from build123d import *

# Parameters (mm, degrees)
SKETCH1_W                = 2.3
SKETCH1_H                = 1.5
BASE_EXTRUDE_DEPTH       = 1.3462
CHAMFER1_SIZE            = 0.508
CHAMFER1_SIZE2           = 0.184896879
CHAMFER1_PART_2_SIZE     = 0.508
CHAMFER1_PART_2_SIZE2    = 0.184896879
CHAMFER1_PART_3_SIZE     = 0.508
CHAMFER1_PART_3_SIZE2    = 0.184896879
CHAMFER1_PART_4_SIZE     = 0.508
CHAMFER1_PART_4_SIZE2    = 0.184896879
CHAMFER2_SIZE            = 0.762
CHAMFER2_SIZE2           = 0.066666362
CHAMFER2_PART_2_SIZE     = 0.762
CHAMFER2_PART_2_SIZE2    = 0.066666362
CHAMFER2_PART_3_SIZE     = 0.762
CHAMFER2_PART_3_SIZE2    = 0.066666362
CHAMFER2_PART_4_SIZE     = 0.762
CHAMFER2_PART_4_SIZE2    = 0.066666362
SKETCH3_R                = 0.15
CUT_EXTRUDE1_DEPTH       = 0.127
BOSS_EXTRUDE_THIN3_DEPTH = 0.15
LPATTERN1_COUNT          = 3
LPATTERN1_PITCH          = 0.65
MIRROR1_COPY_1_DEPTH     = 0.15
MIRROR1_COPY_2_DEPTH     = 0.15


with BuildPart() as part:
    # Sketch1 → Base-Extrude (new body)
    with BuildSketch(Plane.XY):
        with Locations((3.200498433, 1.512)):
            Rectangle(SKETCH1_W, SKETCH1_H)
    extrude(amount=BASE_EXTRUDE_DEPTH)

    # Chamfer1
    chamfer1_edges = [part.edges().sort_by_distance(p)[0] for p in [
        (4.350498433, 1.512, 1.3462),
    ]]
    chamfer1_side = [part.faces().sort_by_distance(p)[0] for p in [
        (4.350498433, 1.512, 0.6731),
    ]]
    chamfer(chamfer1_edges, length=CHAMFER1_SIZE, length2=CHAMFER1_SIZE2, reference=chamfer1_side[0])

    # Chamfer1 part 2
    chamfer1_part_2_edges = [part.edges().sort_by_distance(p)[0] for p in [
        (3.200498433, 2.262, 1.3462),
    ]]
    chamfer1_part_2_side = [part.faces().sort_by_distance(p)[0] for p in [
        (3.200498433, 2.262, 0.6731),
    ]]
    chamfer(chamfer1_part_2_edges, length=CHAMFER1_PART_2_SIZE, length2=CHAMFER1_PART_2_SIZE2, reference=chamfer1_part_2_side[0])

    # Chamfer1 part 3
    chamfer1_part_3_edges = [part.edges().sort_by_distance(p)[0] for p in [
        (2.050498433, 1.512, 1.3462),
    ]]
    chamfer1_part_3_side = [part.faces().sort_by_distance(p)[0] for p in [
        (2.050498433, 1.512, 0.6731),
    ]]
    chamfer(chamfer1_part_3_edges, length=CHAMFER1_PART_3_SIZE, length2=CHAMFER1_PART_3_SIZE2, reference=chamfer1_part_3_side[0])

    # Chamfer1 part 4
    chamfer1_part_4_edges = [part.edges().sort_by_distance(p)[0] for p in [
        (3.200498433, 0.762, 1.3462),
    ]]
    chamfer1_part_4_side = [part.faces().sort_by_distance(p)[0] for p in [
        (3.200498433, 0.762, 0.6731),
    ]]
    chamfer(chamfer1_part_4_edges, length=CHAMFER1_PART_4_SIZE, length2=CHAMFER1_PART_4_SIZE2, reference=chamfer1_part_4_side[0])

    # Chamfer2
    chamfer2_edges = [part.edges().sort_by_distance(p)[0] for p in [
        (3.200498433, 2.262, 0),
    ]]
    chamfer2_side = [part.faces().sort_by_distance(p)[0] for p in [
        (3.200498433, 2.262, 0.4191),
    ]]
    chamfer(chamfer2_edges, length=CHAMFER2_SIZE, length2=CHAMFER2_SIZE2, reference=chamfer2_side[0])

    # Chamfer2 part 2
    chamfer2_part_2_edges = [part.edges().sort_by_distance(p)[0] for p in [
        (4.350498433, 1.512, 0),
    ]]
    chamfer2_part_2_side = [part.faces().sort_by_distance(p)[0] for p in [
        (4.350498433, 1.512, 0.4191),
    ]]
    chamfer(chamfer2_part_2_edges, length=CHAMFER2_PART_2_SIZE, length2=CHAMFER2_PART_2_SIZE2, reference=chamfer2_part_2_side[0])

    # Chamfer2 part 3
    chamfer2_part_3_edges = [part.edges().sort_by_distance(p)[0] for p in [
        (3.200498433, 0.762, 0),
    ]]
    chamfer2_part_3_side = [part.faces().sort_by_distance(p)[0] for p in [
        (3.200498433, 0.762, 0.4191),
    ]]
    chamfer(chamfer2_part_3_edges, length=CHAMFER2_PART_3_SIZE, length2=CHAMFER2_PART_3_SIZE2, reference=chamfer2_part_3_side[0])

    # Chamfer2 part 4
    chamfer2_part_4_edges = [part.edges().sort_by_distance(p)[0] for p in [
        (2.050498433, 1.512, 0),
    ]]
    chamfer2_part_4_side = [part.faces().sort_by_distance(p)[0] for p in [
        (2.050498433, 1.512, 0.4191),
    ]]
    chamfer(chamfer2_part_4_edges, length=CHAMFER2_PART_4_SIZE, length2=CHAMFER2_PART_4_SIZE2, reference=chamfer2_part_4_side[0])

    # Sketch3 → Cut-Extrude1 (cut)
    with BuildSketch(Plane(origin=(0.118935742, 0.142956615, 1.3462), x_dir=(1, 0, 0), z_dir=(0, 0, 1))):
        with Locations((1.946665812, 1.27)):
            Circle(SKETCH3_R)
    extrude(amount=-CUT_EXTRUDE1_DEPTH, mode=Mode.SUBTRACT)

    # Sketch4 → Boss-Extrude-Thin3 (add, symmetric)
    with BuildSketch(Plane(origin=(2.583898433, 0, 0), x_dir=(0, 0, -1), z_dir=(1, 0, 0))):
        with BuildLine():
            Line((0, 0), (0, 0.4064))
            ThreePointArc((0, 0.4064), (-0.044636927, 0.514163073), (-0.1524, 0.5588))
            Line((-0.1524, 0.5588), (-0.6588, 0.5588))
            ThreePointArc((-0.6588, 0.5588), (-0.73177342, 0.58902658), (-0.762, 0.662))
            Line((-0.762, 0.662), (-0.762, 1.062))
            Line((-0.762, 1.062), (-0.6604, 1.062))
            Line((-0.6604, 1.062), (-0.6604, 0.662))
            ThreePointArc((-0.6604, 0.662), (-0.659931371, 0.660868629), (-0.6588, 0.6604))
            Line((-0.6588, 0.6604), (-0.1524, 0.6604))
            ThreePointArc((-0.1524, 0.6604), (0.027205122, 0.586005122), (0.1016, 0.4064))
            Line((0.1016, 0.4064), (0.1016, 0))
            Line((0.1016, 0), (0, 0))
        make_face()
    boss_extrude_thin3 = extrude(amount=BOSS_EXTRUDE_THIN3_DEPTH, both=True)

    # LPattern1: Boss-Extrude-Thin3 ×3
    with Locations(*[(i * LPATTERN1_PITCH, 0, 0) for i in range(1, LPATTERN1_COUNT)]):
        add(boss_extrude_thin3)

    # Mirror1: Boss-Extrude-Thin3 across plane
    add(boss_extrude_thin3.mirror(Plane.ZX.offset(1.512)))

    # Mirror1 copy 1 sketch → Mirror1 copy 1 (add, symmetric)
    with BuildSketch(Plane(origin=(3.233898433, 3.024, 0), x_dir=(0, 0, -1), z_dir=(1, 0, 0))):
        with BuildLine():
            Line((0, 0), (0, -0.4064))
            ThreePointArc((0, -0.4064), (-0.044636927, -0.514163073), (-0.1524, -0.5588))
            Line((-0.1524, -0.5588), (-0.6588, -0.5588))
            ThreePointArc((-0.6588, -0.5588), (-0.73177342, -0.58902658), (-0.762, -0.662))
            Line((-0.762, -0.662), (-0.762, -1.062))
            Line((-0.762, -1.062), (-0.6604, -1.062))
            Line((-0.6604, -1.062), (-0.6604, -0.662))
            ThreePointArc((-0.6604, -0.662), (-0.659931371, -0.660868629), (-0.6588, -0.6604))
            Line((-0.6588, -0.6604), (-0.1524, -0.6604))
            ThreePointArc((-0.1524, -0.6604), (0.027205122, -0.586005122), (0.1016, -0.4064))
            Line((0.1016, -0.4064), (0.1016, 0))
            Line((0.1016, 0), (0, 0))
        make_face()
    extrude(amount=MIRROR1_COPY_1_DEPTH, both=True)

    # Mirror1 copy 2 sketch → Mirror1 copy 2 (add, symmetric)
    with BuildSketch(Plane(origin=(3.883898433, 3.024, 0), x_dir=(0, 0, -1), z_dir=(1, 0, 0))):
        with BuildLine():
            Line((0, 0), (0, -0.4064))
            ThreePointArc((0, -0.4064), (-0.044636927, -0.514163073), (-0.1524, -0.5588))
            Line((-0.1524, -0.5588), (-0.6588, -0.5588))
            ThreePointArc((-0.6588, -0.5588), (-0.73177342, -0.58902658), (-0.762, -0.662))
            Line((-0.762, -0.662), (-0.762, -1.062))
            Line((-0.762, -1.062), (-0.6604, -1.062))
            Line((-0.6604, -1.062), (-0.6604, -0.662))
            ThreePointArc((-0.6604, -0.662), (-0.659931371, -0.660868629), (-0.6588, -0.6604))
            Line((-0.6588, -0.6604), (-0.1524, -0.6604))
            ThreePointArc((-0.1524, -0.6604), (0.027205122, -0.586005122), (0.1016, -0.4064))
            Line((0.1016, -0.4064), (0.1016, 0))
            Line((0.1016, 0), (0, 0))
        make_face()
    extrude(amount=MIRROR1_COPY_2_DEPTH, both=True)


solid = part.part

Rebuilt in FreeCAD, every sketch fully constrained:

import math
import FreeCAD as App
import Part
import Sketcher

V = App.Vector
Q = App.Units.Quantity


def edges_at(feature, points):
    """Names of the edges that pass closest to the given points."""
    edges = feature.Shape.Edges
    near = lambda p: min(range(len(edges)), key=lambda i: edges[i].distToShape(Part.Vertex(*p))[0])
    return sorted({f"Edge{near(p) + 1}" for p in points})


def add_polygon(sketch, points):
    """Adds a closed chain of lines whose ends are joined by coincident constraints."""
    first, n = sketch.GeometryCount, len(points)
    for a, b in zip(points, points[1:] + points[:1]):
        sketch.addGeometry(Part.LineSegment(App.Vector(*a, 0), App.Vector(*b, 0)), False)
    for i in range(n):
        sketch.addConstraint(Sketcher.Constraint("Coincident", first + i, 2, first + (i + 1) % n, 1))

doc = App.newDocument("Part")
params = doc.addObject("Spreadsheet::Sheet", "Params")
for row, (alias, value) in enumerate([
    ("pad1_length", "0.053 in"),
    ("chamfer_size", "0.02 in"),
    ("chamfer_size2", "0.184897 mm"),
    ("chamfer2_size", "0.02 in"),
    ("chamfer2_size2", "0.184897 mm"),
    ("chamfer3_size", "0.02 in"),
    ("chamfer3_size2", "0.184897 mm"),
    ("chamfer4_size", "0.02 in"),
    ("chamfer4_size2", "0.184897 mm"),
    ("chamfer5_size", "0.03 in"),
    ("chamfer5_size2", "0.066666 mm"),
    ("chamfer6_size", "0.03 in"),
    ("chamfer6_size2", "0.066666 mm"),
    ("chamfer7_size", "0.03 in"),
    ("chamfer7_size2", "0.066666 mm"),
    ("chamfer8_size", "0.03 in"),
    ("chamfer8_size2", "0.066666 mm"),
    ("pocket1_length", "0.005 in"),
    ("sketch3_radius", "0.01 in"),
    ("sketch3_radius2", "0.006 in"),
    ("sketch3_width", "0.016 in"),
    ("pad2_length", "0.3 mm"),
    ("linearpattern_pitch", "0.65 mm"),
    ("sketch4_radius", "0.01 in"),
    ("sketch4_radius2", "0.006 in"),
    ("sketch4_width", "0.016 in"),
    ("pad3_length", "0.3 mm"),
    ("sketch5_radius", "0.01 in"),
    ("sketch5_radius2", "0.006 in"),
    ("sketch5_width", "0.016 in"),
    ("pad4_length", "0.3 mm"),
], start=1):
    params.set(f"A{row}", alias)
    params.set(f"B{row}", "=" + value)
    params.setAlias(f"B{row}", alias)

body = doc.addObject("PartDesign::Body", "Body")

# Sketch on XY plane
sketch1 = body.newObject("Sketcher::SketchObject", "Sketch")
sketch1.AttachmentSupport = (doc.getObject("XY_Plane"), [""])
sketch1.MapMode = "FlatFace"
add_polygon(sketch1, [(2.050498, 2.262), (2.050498, 0.762), (4.350498, 0.762), (4.350498, 2.262)])  # lines 0-3
sketch1.addConstraint([
    Sketcher.Constraint("Vertical", 0),
    Sketcher.Constraint("Horizontal", 1),
    Sketcher.Constraint("Vertical", 2),
    Sketcher.Constraint("Horizontal", 3),
    Sketcher.Constraint("DistanceY", -1, 1, 0, 2, Q("0.03 in")),
    Sketcher.Constraint("DistanceX", 1, 1, 1, 2, 2.3),
    Sketcher.Constraint("DistanceY", 0, 2, 0, 1, 1.5),
    Sketcher.Constraint("DistanceX", -1, 1, 0, 2, 2.050498),
])
pad1 = body.newObject("PartDesign::Pad", "Pad")
pad1.Profile = sketch1
pad1.setExpression("Length", "Params.pad1_length")
doc.recompute()

chamfer = body.newObject("PartDesign::Chamfer", "Chamfer")
chamfer.Base = (pad1, edges_at(pad1, [(4.35, 1.512, 1.346)]))
chamfer.ChamferType = "Two distances"
chamfer.setExpression("Size", "Params.chamfer_size")
chamfer.setExpression("Size2", "Params.chamfer_size2")
doc.recompute()

chamfer2 = body.newObject("PartDesign::Chamfer", "Chamfer001")
chamfer2.Base = (chamfer, edges_at(chamfer, [(3.108, 2.262, 1.346)]))
chamfer2.ChamferType = "Two distances"
chamfer2.setExpression("Size", "Params.chamfer2_size")
chamfer2.setExpression("Size2", "Params.chamfer2_size2")
chamfer2.FlipDirection = True
doc.recompute()

chamfer3 = body.newObject("PartDesign::Chamfer", "Chamfer002")
chamfer3.Base = (chamfer2, edges_at(chamfer2, [(2.05, 1.42, 1.346)]))
chamfer3.ChamferType = "Two distances"
chamfer3.setExpression("Size", "Params.chamfer3_size")
chamfer3.setExpression("Size2", "Params.chamfer3_size2")
chamfer3.FlipDirection = True
doc.recompute()

chamfer4 = body.newObject("PartDesign::Chamfer", "Chamfer003")
chamfer4.Base = (chamfer3, edges_at(chamfer3, [(3.2, 0.762, 1.346)]))
chamfer4.ChamferType = "Two distances"
chamfer4.setExpression("Size", "Params.chamfer4_size")
chamfer4.setExpression("Size2", "Params.chamfer4_size2")
chamfer4.FlipDirection = True
doc.recompute()

chamfer5 = body.newObject("PartDesign::Chamfer", "Chamfer004")
chamfer5.Base = (chamfer4, edges_at(chamfer4, [(3.2, 2.262, 0)]))
chamfer5.ChamferType = "Two distances"
chamfer5.setExpression("Size", "Params.chamfer5_size")
chamfer5.setExpression("Size2", "Params.chamfer5_size2")
doc.recompute()

chamfer6 = body.newObject("PartDesign::Chamfer", "Chamfer005")
chamfer6.Base = (chamfer5, edges_at(chamfer5, [(4.35, 1.479, 0)]))
chamfer6.ChamferType = "Two distances"
chamfer6.setExpression("Size", "Params.chamfer6_size")
chamfer6.setExpression("Size2", "Params.chamfer6_size2")
chamfer6.FlipDirection = True
doc.recompute()

chamfer7 = body.newObject("PartDesign::Chamfer", "Chamfer006")
chamfer7.Base = (chamfer6, edges_at(chamfer6, [(3.167, 0.762, 0)]))
chamfer7.ChamferType = "Two distances"
chamfer7.setExpression("Size", "Params.chamfer7_size")
chamfer7.setExpression("Size2", "Params.chamfer7_size2")
chamfer7.FlipDirection = True
doc.recompute()

chamfer8 = body.newObject("PartDesign::Chamfer", "Chamfer007")
chamfer8.Base = (chamfer7, edges_at(chamfer7, [(2.05, 1.512, 0)]))
chamfer8.ChamferType = "Two distances"
chamfer8.setExpression("Size", "Params.chamfer8_size")
chamfer8.setExpression("Size2", "Params.chamfer8_size2")
chamfer8.FlipDirection = True

# Sketch on XY plane
sketch2 = body.newObject("Sketcher::SketchObject", "Sketch001")
sketch2.AttachmentSupport = (doc.getObject("XY_Plane"), [""])
sketch2.MapMode = "FlatFace"
sketch2.AttachmentOffset = App.Placement(V(0, 0, 0.053 * 25.4), App.Rotation())
sketch2.addGeometry(Part.Circle(V(2.065602, 1.412957, 0), V(0, 0, 1), 0.15), False)
sketch2.addConstraint([
    Sketcher.Constraint("Diameter", 0, 0.3),
    Sketcher.Constraint("DistanceX", -1, 1, 0, 3, 2.065602),
    Sketcher.Constraint("DistanceY", -1, 1, 0, 3, 1.412957),
])
pocket1 = body.newObject("PartDesign::Pocket", "Pocket")
pocket1.Profile = sketch2
pocket1.setExpression("Length", "Params.pocket1_length")

# Sketch on YZ plane
sketch3 = body.newObject("Sketcher::SketchObject", "Sketch002")
sketch3.AttachmentSupport = (doc.getObject("YZ_Plane"), [""])
sketch3.MapMode = "FlatFace"
sketch3.AttachmentOffset = App.Placement(V(0, 0, 2.583898), App.Rotation())
sketch3.addGeometry([
    Part.LineSegment(V(0.4064, 0, 0), V(0, 0, 0)),  # 0
    Part.LineSegment(V(0, 0, 0), V(0, -0.1016, 0)),  # 1
    Part.LineSegment(V(0, -0.1016, 0), V(0.4064, -0.1016, 0)),  # 2
    Part.ArcOfCircle(Part.Circle(V(0.4064, 0.1524, 0), V(0, 0, 1), 0.254), math.radians(-90), math.radians(0)),  # 3
    Part.LineSegment(V(0.6604, 0.1524, 0), V(0.6604, 0.6588, 0)),  # 4
    Part.ArcOfCircle(Part.Circle(V(0.662, 0.6588, 0), V(0, 0, 1), 0.0016), math.radians(89.999964), math.radians(180.000036)),  # 5
    Part.LineSegment(V(0.662, 0.6604, 0), V(1.062, 0.6604, 0)),  # 6
    Part.LineSegment(V(1.062, 0.6604, 0), V(1.062, 0.762, 0)),  # 7
    Part.LineSegment(V(1.062, 0.762, 0), V(0.662, 0.762, 0)),  # 8
    Part.ArcOfCircle(Part.Circle(V(0.662, 0.6588, 0), V(0, 0, 1), 0.1032), math.radians(89.999999), math.radians(180.000001)),  # 9
    Part.LineSegment(V(0.5588, 0.6588, 0), V(0.5588, 0.1524, 0)),  # 10
    Part.ArcOfCircle(Part.Circle(V(0.4064, 0.1524, 0), V(0, 0, 1), 0.1524), math.radians(-89.999999), math.radians(-0.000001)),  # 11
], False)
sketch3.addConstraint([
    Sketcher.Constraint("Coincident", 0, 2, 1, 1),
    Sketcher.Constraint("Coincident", 1, 2, 2, 1),
    Sketcher.Constraint("Tangent", 2, 2, 3, 1),
    Sketcher.Constraint("Tangent", 3, 2, 4, 1),
    Sketcher.Constraint("Tangent", 4, 2, 5, 2),
    Sketcher.Constraint("Tangent", 5, 1, 6, 1),
    Sketcher.Constraint("Coincident", 6, 2, 7, 1),
    Sketcher.Constraint("Coincident", 7, 2, 8, 1),
    Sketcher.Constraint("Tangent", 8, 2, 9, 1),
    Sketcher.Constraint("Tangent", 9, 2, 10, 1),
    Sketcher.Constraint("Tangent", 10, 2, 11, 2),
    Sketcher.Constraint("Tangent", 11, 1, 0, 1),
    Sketcher.Constraint("Horizontal", 0),
    Sketcher.Constraint("Vertical", 1),
    Sketcher.Constraint("Horizontal", 2),
    Sketcher.Constraint("Vertical", 4),
    Sketcher.Constraint("Horizontal", 6),
    Sketcher.Constraint("Vertical", 7),
    Sketcher.Constraint("Horizontal", 8),
    Sketcher.Constraint("Vertical", 10),
    Sketcher.Constraint("Coincident", 0, 2, -1, 1),
    Sketcher.Constraint("Coincident", 9, 3, 5, 3),
    Sketcher.Constraint("Coincident", 11, 3, 3, 3),
    Sketcher.Constraint("Radius", 3, Q("0.01 in")),
    Sketcher.Constraint("Radius", 11, Q("0.006 in")),
    Sketcher.Constraint("DistanceX", 0, 2, 0, 1, Q("0.016 in")),
    Sketcher.Constraint("DistanceY", -1, 1, 7, 2, Q("0.03 in")),
    Sketcher.Constraint("Radius", 5, 0.0016),
    Sketcher.Constraint("DistanceX", 6, 1, 6, 2, 0.4),
])
sketch3.setExpression("Constraints[23]", "Params.sketch3_radius")
sketch3.setExpression("Constraints[24]", "Params.sketch3_radius2")
sketch3.setExpression("Constraints[25]", "Params.sketch3_width")
pad2 = body.newObject("PartDesign::Pad", "Pad001")
pad2.Profile = sketch3
pad2.setExpression("Length", "Params.pad2_length")
pad2.Midplane = True
doc.recompute()

linearpattern = body.newObject("PartDesign::LinearPattern", "LinearPattern")
linearpattern.Originals = [pad2]
linearpattern.Direction = (doc.getObject("X_Axis"), [""])
linearpattern.Mode = "offset"
linearpattern.setExpression("Offset", "Params.linearpattern_pitch")
linearpattern.Occurrences = 3
body.Tip = linearpattern
doc.recompute()

datumplane = body.newObject("PartDesign::Plane", "DatumPlane")
datumplane.AttachmentSupport = (doc.getObject("XZ_Plane"), [""])
datumplane.MapMode = "FlatFace"
datumplane.AttachmentOffset = App.Placement(V(0, 0, -1.512), App.Rotation())
mirrored = body.newObject("PartDesign::Mirrored", "Mirrored")
mirrored.Originals = [pad2]
mirrored.MirrorPlane = (datumplane, [""])
body.Tip = mirrored

# Sketch on YZ plane
sketch4 = body.newObject("Sketcher::SketchObject", "Sketch003")
sketch4.AttachmentSupport = (doc.getObject("YZ_Plane"), [""])
sketch4.MapMode = "FlatFace"
sketch4.AttachmentOffset = App.Placement(V(0, 0, 3.233898), App.Rotation())
sketch4.addGeometry([
    Part.LineSegment(V(3.024, 0, 0), V(2.6176, 0, 0)),  # 0
    Part.ArcOfCircle(Part.Circle(V(2.6176, 0.1524, 0), V(0, 0, 1), 0.1524), math.radians(-179.999999), math.radians(-90.000001)),  # 1
    Part.LineSegment(V(2.4652, 0.1524, 0), V(2.4652, 0.6588, 0)),  # 2
    Part.ArcOfCircle(Part.Circle(V(2.362, 0.6588, 0), V(0, 0, 1), 0.1032), math.radians(-0.000001), math.radians(90.000001)),  # 3
    Part.LineSegment(V(2.362, 0.762, 0), V(1.962, 0.762, 0)),  # 4
    Part.LineSegment(V(1.962, 0.762, 0), V(1.962, 0.6604, 0)),  # 5
    Part.LineSegment(V(1.962, 0.6604, 0), V(2.362, 0.6604, 0)),  # 6
    Part.ArcOfCircle(Part.Circle(V(2.362, 0.6588, 0), V(0, 0, 1), 0.0016), math.radians(-0.000036), math.radians(90.000036)),  # 7
    Part.LineSegment(V(2.3636, 0.6588, 0), V(2.3636, 0.1524, 0)),  # 8
    Part.ArcOfCircle(Part.Circle(V(2.6176, 0.1524, 0), V(0, 0, 1), 0.254), math.radians(-180), math.radians(-90)),  # 9
    Part.LineSegment(V(2.6176, -0.1016, 0), V(3.024, -0.1016, 0)),  # 10
    Part.LineSegment(V(3.024, -0.1016, 0), V(3.024, 0, 0)),  # 11
], False)
sketch4.addConstraint([
    Sketcher.Constraint("Tangent", 0, 2, 1, 2),
    Sketcher.Constraint("Tangent", 1, 1, 2, 1),
    Sketcher.Constraint("Tangent", 2, 2, 3, 1),
    Sketcher.Constraint("Tangent", 3, 2, 4, 1),
    Sketcher.Constraint("Coincident", 4, 2, 5, 1),
    Sketcher.Constraint("Coincident", 5, 2, 6, 1),
    Sketcher.Constraint("Tangent", 6, 2, 7, 2),
    Sketcher.Constraint("Tangent", 7, 1, 8, 1),
    Sketcher.Constraint("Tangent", 8, 2, 9, 1),
    Sketcher.Constraint("Tangent", 9, 2, 10, 1),
    Sketcher.Constraint("Coincident", 10, 2, 11, 1),
    Sketcher.Constraint("Coincident", 11, 2, 0, 1),
    Sketcher.Constraint("Horizontal", 0),
    Sketcher.Constraint("Vertical", 2),
    Sketcher.Constraint("Horizontal", 4),
    Sketcher.Constraint("Vertical", 5),
    Sketcher.Constraint("Horizontal", 6),
    Sketcher.Constraint("Vertical", 8),
    Sketcher.Constraint("Horizontal", 10),
    Sketcher.Constraint("Vertical", 11),
    Sketcher.Constraint("Coincident", 7, 3, 3, 3),
    Sketcher.Constraint("Coincident", 9, 3, 1, 3),
    Sketcher.Constraint("PointOnObject", 0, 2, -1),
    Sketcher.Constraint("Radius", 9, Q("0.01 in")),
    Sketcher.Constraint("Radius", 1, Q("0.006 in")),
    Sketcher.Constraint("DistanceX", 0, 2, 0, 1, Q("0.016 in")),
    Sketcher.Constraint("DistanceY", -1, 1, 3, 2, Q("0.03 in")),
    Sketcher.Constraint("Radius", 3, 0.1032),
    Sketcher.Constraint("DistanceX", 4, 2, 4, 1, 0.4),
    Sketcher.Constraint("DistanceX", -1, 1, 1, 3, 2.6176),
])
sketch4.setExpression("Constraints[23]", "Params.sketch4_radius")
sketch4.setExpression("Constraints[24]", "Params.sketch4_radius2")
sketch4.setExpression("Constraints[25]", "Params.sketch4_width")
pad3 = body.newObject("PartDesign::Pad", "Pad002")
pad3.Profile = sketch4
pad3.setExpression("Length", "Params.pad3_length")
pad3.Midplane = True

# Sketch on YZ plane
sketch5 = body.newObject("Sketcher::SketchObject", "Sketch004")
sketch5.AttachmentSupport = (doc.getObject("YZ_Plane"), [""])
sketch5.MapMode = "FlatFace"
sketch5.AttachmentOffset = App.Placement(V(0, 0, 3.883898), App.Rotation())
sketch5.addGeometry([
    Part.LineSegment(V(3.024, 0, 0), V(2.6176, 0, 0)),  # 0
    Part.ArcOfCircle(Part.Circle(V(2.6176, 0.1524, 0), V(0, 0, 1), 0.1524), math.radians(-179.999999), math.radians(-90.000001)),  # 1
    Part.LineSegment(V(2.4652, 0.1524, 0), V(2.4652, 0.6588, 0)),  # 2
    Part.ArcOfCircle(Part.Circle(V(2.362, 0.6588, 0), V(0, 0, 1), 0.1032), math.radians(-0.000001), math.radians(90.000001)),  # 3
    Part.LineSegment(V(2.362, 0.762, 0), V(1.962, 0.762, 0)),  # 4
    Part.LineSegment(V(1.962, 0.762, 0), V(1.962, 0.6604, 0)),  # 5
    Part.LineSegment(V(1.962, 0.6604, 0), V(2.362, 0.6604, 0)),  # 6
    Part.ArcOfCircle(Part.Circle(V(2.362, 0.6588, 0), V(0, 0, 1), 0.0016), math.radians(-0.000036), math.radians(90.000036)),  # 7
    Part.LineSegment(V(2.3636, 0.6588, 0), V(2.3636, 0.1524, 0)),  # 8
    Part.ArcOfCircle(Part.Circle(V(2.6176, 0.1524, 0), V(0, 0, 1), 0.254), math.radians(-180), math.radians(-90)),  # 9
    Part.LineSegment(V(2.6176, -0.1016, 0), V(3.024, -0.1016, 0)),  # 10
    Part.LineSegment(V(3.024, -0.1016, 0), V(3.024, 0, 0)),  # 11
], False)
sketch5.addConstraint([
    Sketcher.Constraint("Tangent", 0, 2, 1, 2),
    Sketcher.Constraint("Tangent", 1, 1, 2, 1),
    Sketcher.Constraint("Tangent", 2, 2, 3, 1),
    Sketcher.Constraint("Tangent", 3, 2, 4, 1),
    Sketcher.Constraint("Coincident", 4, 2, 5, 1),
    Sketcher.Constraint("Coincident", 5, 2, 6, 1),
    Sketcher.Constraint("Tangent", 6, 2, 7, 2),
    Sketcher.Constraint("Tangent", 7, 1, 8, 1),
    Sketcher.Constraint("Tangent", 8, 2, 9, 1),
    Sketcher.Constraint("Tangent", 9, 2, 10, 1),
    Sketcher.Constraint("Coincident", 10, 2, 11, 1),
    Sketcher.Constraint("Coincident", 11, 2, 0, 1),
    Sketcher.Constraint("Horizontal", 0),
    Sketcher.Constraint("Vertical", 2),
    Sketcher.Constraint("Horizontal", 4),
    Sketcher.Constraint("Vertical", 5),
    Sketcher.Constraint("Horizontal", 6),
    Sketcher.Constraint("Vertical", 8),
    Sketcher.Constraint("Horizontal", 10),
    Sketcher.Constraint("Vertical", 11),
    Sketcher.Constraint("Coincident", 7, 3, 3, 3),
    Sketcher.Constraint("Coincident", 9, 3, 1, 3),
    Sketcher.Constraint("PointOnObject", 0, 2, -1),
    Sketcher.Constraint("Radius", 9, Q("0.01 in")),
    Sketcher.Constraint("Radius", 1, Q("0.006 in")),
    Sketcher.Constraint("DistanceX", 0, 2, 0, 1, Q("0.016 in")),
    Sketcher.Constraint("DistanceY", -1, 1, 3, 2, Q("0.03 in")),
    Sketcher.Constraint("Radius", 3, 0.1032),
    Sketcher.Constraint("DistanceX", 4, 2, 4, 1, 0.4),
    Sketcher.Constraint("DistanceX", -1, 1, 1, 3, 2.6176),
])
sketch5.setExpression("Constraints[23]", "Params.sketch5_radius")
sketch5.setExpression("Constraints[24]", "Params.sketch5_radius2")
sketch5.setExpression("Constraints[25]", "Params.sketch5_width")
pad4 = body.newObject("PartDesign::Pad", "Pad003")
pad4.Profile = sketch5
pad4.setExpression("Length", "Params.pad4_length")
pad4.Midplane = True

doc.recompute()
